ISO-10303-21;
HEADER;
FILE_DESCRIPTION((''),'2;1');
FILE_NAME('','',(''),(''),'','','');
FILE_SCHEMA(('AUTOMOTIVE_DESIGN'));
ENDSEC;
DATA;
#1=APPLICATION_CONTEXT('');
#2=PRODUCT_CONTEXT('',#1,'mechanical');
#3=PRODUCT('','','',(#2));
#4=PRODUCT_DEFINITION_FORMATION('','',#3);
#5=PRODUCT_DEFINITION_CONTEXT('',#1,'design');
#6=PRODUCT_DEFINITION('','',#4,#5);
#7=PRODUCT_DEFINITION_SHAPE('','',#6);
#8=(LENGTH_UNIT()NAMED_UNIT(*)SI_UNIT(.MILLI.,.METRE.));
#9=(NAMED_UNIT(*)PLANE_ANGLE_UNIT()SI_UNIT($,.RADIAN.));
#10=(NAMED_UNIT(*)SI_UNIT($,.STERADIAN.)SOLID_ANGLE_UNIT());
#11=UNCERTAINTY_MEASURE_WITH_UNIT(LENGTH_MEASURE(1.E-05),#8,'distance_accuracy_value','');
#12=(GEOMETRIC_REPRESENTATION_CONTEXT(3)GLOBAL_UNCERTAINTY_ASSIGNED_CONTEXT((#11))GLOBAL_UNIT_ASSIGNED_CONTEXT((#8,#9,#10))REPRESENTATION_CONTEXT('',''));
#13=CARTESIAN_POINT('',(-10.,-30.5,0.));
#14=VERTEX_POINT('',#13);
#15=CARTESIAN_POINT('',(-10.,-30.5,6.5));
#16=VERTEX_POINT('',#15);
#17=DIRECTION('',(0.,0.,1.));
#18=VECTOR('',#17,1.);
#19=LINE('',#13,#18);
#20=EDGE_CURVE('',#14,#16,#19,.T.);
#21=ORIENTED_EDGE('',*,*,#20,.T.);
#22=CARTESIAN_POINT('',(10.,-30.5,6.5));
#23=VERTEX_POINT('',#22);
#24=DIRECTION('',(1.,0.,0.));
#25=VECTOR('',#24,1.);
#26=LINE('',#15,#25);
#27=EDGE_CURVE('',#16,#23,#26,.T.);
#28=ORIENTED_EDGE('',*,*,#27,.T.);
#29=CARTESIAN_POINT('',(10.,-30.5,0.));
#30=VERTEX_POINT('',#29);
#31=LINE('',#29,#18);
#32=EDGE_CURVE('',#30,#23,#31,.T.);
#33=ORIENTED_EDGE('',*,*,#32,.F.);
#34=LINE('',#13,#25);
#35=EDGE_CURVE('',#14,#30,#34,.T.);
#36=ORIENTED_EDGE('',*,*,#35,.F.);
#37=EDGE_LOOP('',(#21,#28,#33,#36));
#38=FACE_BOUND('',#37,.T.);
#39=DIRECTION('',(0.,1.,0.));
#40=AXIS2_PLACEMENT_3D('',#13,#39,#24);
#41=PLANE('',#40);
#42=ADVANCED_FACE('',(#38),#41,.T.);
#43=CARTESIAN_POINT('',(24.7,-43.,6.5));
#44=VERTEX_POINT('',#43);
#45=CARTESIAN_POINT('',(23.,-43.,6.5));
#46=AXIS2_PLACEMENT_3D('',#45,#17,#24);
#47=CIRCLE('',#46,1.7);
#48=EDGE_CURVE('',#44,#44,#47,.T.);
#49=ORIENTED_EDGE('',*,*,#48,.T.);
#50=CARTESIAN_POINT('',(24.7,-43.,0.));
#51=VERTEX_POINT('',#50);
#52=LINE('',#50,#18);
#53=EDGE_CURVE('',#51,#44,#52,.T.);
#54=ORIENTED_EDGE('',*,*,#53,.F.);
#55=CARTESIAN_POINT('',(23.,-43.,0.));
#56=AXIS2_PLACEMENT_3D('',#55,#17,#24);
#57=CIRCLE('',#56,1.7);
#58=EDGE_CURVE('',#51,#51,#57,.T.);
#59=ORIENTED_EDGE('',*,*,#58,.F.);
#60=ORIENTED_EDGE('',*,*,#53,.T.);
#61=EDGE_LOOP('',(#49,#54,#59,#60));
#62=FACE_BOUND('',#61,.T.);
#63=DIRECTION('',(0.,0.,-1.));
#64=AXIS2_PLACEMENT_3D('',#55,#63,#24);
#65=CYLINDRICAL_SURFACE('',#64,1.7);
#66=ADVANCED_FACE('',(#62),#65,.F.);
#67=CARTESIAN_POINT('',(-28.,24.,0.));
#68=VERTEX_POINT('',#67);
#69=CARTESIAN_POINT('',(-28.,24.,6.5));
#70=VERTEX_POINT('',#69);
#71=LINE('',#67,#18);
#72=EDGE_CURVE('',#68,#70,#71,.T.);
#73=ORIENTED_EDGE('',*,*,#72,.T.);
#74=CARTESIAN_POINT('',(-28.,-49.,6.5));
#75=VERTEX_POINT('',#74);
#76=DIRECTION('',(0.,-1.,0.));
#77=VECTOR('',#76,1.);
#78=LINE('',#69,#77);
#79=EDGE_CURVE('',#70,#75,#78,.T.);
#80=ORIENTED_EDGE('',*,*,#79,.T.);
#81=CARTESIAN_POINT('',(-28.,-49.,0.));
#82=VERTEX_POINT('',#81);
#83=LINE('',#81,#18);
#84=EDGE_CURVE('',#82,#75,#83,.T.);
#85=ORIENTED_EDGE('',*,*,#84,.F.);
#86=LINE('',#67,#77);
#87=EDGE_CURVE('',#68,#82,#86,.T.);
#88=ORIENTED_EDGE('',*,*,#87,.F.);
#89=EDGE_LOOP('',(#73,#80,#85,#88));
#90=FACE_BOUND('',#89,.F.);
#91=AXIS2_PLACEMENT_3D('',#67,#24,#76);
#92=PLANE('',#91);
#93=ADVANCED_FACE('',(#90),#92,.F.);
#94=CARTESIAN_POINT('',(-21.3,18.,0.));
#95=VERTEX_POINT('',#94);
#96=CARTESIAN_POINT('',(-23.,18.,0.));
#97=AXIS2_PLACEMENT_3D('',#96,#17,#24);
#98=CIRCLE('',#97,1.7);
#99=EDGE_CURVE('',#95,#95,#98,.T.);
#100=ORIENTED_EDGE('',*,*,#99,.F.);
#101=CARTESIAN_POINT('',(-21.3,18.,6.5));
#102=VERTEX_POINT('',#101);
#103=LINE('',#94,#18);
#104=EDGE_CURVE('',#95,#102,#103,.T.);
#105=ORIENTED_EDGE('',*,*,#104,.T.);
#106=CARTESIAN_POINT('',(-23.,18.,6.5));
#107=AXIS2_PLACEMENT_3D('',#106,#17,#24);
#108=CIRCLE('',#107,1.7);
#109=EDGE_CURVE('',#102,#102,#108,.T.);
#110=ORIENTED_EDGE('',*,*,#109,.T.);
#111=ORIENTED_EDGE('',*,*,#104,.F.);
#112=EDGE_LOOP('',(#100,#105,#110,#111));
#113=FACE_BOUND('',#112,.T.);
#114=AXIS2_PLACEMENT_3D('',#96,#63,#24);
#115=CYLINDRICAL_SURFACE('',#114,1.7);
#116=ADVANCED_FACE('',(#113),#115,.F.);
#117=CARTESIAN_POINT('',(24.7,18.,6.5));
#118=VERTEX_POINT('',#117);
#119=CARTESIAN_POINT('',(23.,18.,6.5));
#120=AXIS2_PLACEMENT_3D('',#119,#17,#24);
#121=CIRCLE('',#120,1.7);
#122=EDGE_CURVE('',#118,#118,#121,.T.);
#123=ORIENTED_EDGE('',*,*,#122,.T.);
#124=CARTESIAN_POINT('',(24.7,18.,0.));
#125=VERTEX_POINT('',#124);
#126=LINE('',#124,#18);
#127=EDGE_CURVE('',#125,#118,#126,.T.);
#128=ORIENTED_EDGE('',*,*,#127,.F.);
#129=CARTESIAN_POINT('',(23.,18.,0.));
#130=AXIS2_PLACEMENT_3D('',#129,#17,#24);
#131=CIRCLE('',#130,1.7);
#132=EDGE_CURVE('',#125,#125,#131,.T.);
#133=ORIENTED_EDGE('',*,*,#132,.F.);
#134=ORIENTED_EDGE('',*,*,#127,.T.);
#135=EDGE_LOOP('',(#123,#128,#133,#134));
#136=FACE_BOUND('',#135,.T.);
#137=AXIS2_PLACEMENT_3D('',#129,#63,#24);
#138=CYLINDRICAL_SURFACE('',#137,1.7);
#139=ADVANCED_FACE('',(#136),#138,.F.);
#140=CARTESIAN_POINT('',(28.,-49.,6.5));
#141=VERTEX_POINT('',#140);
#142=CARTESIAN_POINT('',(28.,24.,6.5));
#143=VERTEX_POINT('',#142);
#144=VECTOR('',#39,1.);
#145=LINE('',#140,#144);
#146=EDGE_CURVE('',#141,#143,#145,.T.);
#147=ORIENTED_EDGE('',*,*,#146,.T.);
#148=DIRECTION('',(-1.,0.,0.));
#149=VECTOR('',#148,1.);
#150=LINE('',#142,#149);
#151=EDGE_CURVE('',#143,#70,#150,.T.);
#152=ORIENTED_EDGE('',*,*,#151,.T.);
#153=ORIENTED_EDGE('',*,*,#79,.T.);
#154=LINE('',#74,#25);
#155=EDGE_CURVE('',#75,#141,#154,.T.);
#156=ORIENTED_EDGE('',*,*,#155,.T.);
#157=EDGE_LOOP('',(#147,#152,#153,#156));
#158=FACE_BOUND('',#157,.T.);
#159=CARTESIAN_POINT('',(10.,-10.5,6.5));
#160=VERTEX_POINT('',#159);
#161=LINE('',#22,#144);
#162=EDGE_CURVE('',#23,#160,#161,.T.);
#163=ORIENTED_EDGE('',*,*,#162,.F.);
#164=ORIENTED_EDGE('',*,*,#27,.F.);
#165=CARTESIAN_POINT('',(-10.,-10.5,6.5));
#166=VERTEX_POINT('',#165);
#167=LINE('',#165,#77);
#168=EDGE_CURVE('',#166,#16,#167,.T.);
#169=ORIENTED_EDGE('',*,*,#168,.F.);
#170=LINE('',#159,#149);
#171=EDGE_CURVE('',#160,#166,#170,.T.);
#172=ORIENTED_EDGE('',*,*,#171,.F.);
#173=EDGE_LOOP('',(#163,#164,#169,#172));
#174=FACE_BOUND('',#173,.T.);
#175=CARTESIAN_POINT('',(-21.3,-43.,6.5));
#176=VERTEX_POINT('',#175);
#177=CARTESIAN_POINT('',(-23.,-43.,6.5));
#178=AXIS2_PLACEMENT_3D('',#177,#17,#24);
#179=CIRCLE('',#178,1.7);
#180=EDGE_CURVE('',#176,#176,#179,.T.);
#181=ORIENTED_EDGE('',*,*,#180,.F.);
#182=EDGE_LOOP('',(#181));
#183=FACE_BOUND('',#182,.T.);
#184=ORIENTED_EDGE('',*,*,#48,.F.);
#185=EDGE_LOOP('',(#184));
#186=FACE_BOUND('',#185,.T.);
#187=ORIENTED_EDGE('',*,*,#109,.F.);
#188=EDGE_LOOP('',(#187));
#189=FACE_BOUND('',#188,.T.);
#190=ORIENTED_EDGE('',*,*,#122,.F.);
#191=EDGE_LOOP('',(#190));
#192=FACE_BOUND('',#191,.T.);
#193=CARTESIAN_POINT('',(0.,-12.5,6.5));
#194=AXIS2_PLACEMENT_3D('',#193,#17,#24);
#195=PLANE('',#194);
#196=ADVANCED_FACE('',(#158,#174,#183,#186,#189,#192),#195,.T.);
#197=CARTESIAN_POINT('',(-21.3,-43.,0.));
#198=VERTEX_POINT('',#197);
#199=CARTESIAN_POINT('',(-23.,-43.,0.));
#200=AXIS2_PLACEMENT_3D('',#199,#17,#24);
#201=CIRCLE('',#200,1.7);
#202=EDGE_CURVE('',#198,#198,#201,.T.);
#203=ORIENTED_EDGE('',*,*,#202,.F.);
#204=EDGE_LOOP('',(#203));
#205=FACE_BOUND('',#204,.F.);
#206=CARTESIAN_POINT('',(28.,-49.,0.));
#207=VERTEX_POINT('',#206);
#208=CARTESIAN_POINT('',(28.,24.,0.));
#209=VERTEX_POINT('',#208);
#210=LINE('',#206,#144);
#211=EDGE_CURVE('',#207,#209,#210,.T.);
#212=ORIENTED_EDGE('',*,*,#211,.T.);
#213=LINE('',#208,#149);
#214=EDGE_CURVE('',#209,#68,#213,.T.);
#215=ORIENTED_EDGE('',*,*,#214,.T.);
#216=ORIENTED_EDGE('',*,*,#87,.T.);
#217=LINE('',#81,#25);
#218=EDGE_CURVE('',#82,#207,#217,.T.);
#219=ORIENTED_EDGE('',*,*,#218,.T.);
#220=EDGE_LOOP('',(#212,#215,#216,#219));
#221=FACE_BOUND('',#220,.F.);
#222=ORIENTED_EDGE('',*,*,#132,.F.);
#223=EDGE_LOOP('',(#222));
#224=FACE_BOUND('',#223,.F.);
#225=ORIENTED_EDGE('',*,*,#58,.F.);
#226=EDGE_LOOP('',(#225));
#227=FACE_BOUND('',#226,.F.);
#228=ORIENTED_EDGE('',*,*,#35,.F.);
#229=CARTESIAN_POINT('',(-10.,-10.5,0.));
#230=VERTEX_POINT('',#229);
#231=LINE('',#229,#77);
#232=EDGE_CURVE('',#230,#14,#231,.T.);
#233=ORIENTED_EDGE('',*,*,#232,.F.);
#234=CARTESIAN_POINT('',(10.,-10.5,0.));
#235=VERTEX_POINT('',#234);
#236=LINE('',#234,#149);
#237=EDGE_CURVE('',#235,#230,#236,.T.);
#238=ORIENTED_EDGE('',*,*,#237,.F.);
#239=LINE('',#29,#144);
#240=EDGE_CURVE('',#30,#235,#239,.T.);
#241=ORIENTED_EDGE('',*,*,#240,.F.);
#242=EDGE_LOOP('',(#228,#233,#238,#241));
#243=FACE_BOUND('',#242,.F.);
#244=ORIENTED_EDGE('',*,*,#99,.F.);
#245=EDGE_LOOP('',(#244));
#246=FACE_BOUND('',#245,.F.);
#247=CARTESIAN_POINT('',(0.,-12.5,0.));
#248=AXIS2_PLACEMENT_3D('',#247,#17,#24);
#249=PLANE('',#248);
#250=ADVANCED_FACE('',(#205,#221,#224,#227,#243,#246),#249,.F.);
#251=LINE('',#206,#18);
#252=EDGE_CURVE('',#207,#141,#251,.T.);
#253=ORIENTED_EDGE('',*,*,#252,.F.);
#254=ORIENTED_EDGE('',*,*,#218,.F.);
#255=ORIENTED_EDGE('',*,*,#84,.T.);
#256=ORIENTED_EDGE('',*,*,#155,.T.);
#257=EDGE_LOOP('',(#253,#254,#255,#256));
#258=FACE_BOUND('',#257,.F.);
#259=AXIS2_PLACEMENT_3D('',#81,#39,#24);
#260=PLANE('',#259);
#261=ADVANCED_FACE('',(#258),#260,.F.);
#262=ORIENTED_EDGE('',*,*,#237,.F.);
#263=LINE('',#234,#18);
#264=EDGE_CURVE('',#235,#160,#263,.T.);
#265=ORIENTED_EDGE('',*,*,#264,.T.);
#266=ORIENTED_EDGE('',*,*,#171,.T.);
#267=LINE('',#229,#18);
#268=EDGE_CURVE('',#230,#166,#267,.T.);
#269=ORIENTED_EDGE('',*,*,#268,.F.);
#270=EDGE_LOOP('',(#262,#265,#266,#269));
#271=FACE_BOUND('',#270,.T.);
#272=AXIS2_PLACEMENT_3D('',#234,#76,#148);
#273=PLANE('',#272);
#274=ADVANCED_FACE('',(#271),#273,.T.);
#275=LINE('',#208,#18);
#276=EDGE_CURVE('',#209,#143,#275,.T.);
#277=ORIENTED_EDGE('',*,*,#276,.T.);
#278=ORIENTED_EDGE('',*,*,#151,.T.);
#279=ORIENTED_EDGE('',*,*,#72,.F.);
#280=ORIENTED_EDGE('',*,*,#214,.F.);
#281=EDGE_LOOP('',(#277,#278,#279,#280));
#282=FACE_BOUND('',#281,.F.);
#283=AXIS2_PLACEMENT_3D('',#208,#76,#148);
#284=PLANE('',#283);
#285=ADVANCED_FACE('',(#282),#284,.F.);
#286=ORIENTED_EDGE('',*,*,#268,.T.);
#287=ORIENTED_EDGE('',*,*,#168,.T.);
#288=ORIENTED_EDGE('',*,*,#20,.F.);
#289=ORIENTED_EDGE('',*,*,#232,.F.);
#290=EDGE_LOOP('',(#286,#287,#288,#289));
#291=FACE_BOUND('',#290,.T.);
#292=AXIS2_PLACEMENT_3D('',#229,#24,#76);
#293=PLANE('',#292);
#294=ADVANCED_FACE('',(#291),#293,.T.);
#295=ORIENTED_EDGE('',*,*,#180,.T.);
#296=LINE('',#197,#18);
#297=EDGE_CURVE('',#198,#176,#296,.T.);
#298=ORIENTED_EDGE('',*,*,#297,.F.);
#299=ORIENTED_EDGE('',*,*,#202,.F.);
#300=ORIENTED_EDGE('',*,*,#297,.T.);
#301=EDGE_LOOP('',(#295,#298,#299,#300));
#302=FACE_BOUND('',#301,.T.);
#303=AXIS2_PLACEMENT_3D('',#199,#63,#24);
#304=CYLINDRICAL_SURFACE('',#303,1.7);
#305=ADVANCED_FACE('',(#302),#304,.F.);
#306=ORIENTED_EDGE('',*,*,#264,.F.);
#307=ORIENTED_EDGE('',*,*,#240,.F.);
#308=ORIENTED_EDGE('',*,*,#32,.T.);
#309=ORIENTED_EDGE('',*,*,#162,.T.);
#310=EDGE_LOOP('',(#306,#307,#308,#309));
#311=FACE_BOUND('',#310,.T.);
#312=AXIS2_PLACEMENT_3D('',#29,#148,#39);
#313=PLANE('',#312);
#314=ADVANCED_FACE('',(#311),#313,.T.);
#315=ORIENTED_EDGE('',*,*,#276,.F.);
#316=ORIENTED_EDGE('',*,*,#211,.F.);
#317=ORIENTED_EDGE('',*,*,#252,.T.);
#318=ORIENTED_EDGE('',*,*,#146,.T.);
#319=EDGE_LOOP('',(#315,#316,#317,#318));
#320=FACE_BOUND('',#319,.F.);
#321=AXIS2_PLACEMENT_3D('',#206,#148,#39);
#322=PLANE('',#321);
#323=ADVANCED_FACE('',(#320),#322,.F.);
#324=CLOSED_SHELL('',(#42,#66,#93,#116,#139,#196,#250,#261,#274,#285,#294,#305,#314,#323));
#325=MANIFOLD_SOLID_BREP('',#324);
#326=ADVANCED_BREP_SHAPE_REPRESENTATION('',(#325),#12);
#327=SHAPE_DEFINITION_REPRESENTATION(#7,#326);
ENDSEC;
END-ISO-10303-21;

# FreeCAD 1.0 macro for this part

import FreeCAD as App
import Part
import Sketcher
from FreeCAD import Vector
Q = App.Units.Quantity


def add_polygon(sketch, points):
    """Adds a closed chain of lines whose ends are joined by coincident constraints."""
    first, n = sketch.GeometryCount, len(points)
    for a, b in zip(points, points[1:] + points[:1]):
        sketch.addGeometry(Part.LineSegment(App.Vector(*a, 0), App.Vector(*b, 0)), False)
    for i in range(n):
        sketch.addConstraint(Sketcher.Constraint("Coincident", first + i, 2, first + (i + 1) % n, 1))

doc = App.newDocument("Part")
body = doc.addObject("PartDesign::Body", "Body")

# Sketch on XY plane
sketch1 = body.newObject("Sketcher::SketchObject", "Sketch")
sketch1.AttachmentSupport = (doc.getObject("XY_Plane"), [""])
sketch1.MapMode = "FlatFace"
add_polygon(sketch1, [(-28, 24), (-28, -49), (28, -49), (28, 24)])  # lines 0-3
sketch1.addGeometry(Part.Circle(Vector(-23, -43, 0), Vector(0, 0, 1), 1.7), False)  # 4
sketch1.addGeometry(Part.Circle(Vector(23, -43, 0), Vector(0, 0, 1), 1.7), False)  # 5
add_polygon(sketch1, [(10, -30.5), (-10, -30.5), (-10, -10.5), (10, -10.5)])  # lines 6-9
sketch1.addGeometry(Part.Circle(Vector(-23, 18, 0), Vector(0, 0, 1), 1.7), False)  # 10
sketch1.addGeometry(Part.Circle(Vector(23, 18, 0), Vector(0, 0, 1), 1.7), False)  # 11
sketch1.addConstraint(Sketcher.Constraint("Vertical", 0))
sketch1.addConstraint(Sketcher.Constraint("Horizontal", 1))
sketch1.addConstraint(Sketcher.Constraint("Vertical", 2))
sketch1.addConstraint(Sketcher.Constraint("Horizontal", 3))
sketch1.addConstraint(Sketcher.Constraint("Horizontal", 6))
sketch1.addConstraint(Sketcher.Constraint("Vertical", 7))
sketch1.addConstraint(Sketcher.Constraint("Horizontal", 8))
sketch1.addConstraint(Sketcher.Constraint("Vertical", 9))
sketch1.addConstraint(Sketcher.Constraint("Equal", 4, 5))
sketch1.addConstraint(Sketcher.Constraint("Equal", 5, 10))
sketch1.addConstraint(Sketcher.Constraint("Equal", 10, 11))
sketch1.addConstraint(Sketcher.Constraint("Symmetric", 4, 3, 5, 3, -2))
sketch1.addConstraint(Sketcher.Constraint("Symmetric", 10, 3, 11, 3, -2))
sketch1.addConstraint(Sketcher.Constraint("Vertical", 4, 3, 10, 3))
sketch1.addConstraint(Sketcher.Constraint("Equal", 8, 7))
sketch1.addConstraint(Sketcher.Constraint("Diameter", 4, Q("3.4 mm")))
sketch1.addConstraint(Sketcher.Constraint("DistanceX", 1, 1, 1, 2, Q("56 mm")))
sketch1.addConstraint(Sketcher.Constraint("DistanceX", 6, 2, 6, 1, Q("20 mm")))
sketch1.addConstraint(Sketcher.Constraint("DistanceY", 0, 2, 0, 1, Q("73 mm")))
sketch1.addConstraint(Sketcher.Constraint("DistanceX", 4, 3, -1, 1, Q("23 mm")))
sketch1.addConstraint(Sketcher.Constraint("DistanceY", 4, 3, -1, 1, Q("43 mm")))
sketch1.addConstraint(Sketcher.Constraint("DistanceY", -1, 1, 10, 3, Q("18 mm")))
sketch1.addConstraint(Sketcher.Constraint("DistanceX", 0, 2, -1, 1, Q("28 mm")))
sketch1.addConstraint(Sketcher.Constraint("DistanceY", 0, 2, -1, 1, Q("49 mm")))
sketch1.addConstraint(Sketcher.Constraint("DistanceX", 6, 2, -1, 1, Q("10 mm")))
sketch1.addConstraint(Sketcher.Constraint("DistanceY", 6, 2, -1, 1, Q("30.5 mm")))
pad1 = body.newObject("PartDesign::Pad", "Pad")
pad1.Profile = sketch1
pad1.Length = 6.5

doc.recompute()
